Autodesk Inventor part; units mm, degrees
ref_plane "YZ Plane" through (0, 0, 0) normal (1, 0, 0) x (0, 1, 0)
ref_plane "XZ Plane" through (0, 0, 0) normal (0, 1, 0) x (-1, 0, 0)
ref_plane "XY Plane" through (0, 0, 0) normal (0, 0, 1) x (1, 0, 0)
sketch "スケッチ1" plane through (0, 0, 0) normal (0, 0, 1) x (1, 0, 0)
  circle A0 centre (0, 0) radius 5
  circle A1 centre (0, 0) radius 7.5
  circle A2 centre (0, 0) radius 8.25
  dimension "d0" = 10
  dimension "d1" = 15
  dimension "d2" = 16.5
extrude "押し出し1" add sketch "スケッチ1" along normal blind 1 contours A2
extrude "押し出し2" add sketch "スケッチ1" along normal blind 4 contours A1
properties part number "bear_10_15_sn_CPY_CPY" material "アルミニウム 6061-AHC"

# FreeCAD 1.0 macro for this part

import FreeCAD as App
import Part
import Sketcher
from FreeCAD import Vector
Q = App.Units.Quantity

doc = App.newDocument("Part")
body = doc.addObject("PartDesign::Body", "Body")

# Sketch on XY plane
sketch1 = doc.addObject("Sketcher::SketchObject", "Sketch")
body.addObject(sketch1)
sketch1.AttachmentSupport = (doc.XY_Plane, [""])
sketch1.MapMode = "FlatFace"
sketch1.addGeometry(Part.Circle(Vector(0, 0, 0), Vector(0, 0, 1), 8), False)
sketch1.addGeometry(Part.Circle(Vector(0, 0, 0), Vector(0, 0, 1), 8), False)
sketch1.addConstraint(Sketcher.Constraint("Coincident", 0, 3, -1, 1))
sketch1.addConstraint(Sketcher.Constraint("Coincident", 1, 3, -1, 1))
sketch1.addConstraint(Sketcher.Constraint("Diameter", 1, Q("15 mm")))
sketch1.addConstraint(Sketcher.Constraint("Diameter", 0, Q("16.5 mm")))
pad1 = doc.addObject("PartDesign::Pad", "Pad")
body.addObject(pad1)
pad1.Profile = sketch1
pad1.Length = 1

# Sketch on XY plane
sketch2 = doc.addObject("Sketcher::SketchObject", "Sketch001")
body.addObject(sketch2)
sketch2.AttachmentSupport = (doc.XY_Plane, [""])
sketch2.MapMode = "FlatFace"
sketch2.addGeometry(Part.Circle(Vector(0, 0, 0), Vector(0, 0, 1), 8), False)
sketch2.addGeometry(Part.Circle(Vector(0, 0, 0), Vector(0, 0, 1), 5), False)
sketch2.addConstraint(Sketcher.Constraint("Coincident", 0, 3, -1, 1))
sketch2.addConstraint(Sketcher.Constraint("Coincident", 1, 3, -1, 1))
sketch2.addConstraint(Sketcher.Constraint("Diameter", 0, Q("15 mm")))
sketch2.addConstraint(Sketcher.Constraint("Diameter", 1, Q("10 mm")))
pad2 = doc.addObject("PartDesign::Pad", "Pad001")
body.addObject(pad2)
pad2.Profile = sketch2
pad2.Length = 4

doc.recompute()
